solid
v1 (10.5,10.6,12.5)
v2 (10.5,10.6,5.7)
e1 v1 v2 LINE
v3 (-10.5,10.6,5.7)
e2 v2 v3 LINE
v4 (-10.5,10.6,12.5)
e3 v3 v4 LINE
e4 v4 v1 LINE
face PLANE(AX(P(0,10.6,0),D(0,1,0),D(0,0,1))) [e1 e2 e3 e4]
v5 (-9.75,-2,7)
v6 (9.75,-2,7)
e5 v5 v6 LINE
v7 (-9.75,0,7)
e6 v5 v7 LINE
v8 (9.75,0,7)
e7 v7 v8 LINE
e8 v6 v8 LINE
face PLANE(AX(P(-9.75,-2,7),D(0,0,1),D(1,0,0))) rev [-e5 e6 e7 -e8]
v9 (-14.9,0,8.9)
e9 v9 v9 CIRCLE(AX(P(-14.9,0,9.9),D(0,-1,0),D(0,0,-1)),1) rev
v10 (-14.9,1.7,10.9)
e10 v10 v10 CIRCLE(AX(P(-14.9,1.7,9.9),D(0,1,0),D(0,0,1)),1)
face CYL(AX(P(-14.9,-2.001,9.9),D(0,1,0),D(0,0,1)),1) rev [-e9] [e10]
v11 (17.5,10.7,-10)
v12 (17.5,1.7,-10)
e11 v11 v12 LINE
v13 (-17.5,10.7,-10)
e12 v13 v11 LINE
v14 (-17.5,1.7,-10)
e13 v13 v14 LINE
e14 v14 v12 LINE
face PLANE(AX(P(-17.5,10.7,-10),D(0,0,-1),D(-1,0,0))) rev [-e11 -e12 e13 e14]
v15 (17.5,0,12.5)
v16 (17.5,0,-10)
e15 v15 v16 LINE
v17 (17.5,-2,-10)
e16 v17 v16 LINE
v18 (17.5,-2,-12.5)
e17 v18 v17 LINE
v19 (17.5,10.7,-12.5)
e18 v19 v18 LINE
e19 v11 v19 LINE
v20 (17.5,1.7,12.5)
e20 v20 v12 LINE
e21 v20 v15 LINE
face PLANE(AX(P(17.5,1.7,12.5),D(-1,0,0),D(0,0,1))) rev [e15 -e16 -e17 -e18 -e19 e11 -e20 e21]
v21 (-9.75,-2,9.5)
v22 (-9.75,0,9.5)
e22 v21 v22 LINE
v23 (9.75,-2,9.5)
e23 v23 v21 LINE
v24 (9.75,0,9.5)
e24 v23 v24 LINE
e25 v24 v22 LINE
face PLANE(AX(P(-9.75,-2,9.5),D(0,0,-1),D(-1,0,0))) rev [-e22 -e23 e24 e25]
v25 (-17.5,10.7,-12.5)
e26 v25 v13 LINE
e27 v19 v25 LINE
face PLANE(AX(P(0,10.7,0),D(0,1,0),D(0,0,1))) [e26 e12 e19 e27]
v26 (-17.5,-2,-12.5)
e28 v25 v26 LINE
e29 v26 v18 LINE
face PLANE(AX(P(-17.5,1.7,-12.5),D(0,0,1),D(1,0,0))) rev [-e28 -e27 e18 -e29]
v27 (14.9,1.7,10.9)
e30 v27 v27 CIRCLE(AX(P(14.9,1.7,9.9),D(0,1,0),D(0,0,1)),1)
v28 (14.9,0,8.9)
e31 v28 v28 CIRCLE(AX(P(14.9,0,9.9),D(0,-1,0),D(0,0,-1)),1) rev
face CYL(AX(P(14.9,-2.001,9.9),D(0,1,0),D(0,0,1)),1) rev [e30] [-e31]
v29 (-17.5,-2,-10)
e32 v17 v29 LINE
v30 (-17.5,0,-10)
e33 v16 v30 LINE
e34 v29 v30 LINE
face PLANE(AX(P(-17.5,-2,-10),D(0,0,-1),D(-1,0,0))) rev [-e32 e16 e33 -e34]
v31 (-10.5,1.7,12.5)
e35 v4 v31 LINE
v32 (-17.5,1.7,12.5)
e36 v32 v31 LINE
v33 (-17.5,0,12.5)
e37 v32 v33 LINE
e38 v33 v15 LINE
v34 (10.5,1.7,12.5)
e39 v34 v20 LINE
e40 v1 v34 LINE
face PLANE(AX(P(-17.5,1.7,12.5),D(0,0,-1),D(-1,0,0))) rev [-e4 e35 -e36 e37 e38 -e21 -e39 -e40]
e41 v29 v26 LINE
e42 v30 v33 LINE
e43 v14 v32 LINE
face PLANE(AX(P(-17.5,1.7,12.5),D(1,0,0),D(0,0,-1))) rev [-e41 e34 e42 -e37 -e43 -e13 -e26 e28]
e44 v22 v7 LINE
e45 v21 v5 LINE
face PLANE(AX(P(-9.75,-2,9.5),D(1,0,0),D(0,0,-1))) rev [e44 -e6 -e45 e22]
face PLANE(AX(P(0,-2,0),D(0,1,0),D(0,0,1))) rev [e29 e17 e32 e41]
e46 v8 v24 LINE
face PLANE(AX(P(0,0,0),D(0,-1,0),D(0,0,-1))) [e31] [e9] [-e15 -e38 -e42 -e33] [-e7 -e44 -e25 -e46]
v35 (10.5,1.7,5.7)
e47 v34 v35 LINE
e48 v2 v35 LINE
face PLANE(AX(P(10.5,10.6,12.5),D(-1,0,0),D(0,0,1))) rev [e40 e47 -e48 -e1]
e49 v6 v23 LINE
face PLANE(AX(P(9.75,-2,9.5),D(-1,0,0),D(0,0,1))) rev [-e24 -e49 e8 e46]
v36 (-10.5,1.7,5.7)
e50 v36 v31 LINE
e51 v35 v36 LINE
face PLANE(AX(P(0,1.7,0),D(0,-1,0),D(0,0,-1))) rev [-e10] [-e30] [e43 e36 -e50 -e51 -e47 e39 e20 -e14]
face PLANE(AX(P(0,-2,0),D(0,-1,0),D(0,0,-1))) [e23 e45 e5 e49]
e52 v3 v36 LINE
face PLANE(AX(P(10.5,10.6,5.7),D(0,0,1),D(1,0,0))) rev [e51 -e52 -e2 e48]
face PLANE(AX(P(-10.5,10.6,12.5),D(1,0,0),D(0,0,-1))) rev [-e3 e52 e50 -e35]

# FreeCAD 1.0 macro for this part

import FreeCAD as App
import Part
import Sketcher
from FreeCAD import Vector

doc = App.newDocument("Part")
body = doc.addObject("PartDesign::Body", "Body")

sketch1 = body.newObject("Sketcher::SketchObject", "Sketch")
sketch1.AttachmentSupport = (doc.getObject("XZ_Plane"), [""])
sketch1.MapMode = "FlatFace"
sketch1.addGeometry([
    Part.LineSegment(Vector(-18, -12, 0), Vector(-18, 12, 0)),
    Part.LineSegment(Vector(-18, 12, 0), Vector(18, 12, 0)),
    Part.LineSegment(Vector(18, 12, 0), Vector(18, -12, 0)),
    Part.LineSegment(Vector(18, -12, 0), Vector(-18, -12, 0)),
], False)
sketch1.addConstraint([
    Sketcher.Constraint("Coincident", 0, 2, 1, 1),
    Sketcher.Constraint("Coincident", 1, 2, 2, 1),
    Sketcher.Constraint("Coincident", 2, 2, 3, 1),
    Sketcher.Constraint("Coincident", 3, 2, 0, 1),
    Sketcher.Constraint("Vertical", 0),
    Sketcher.Constraint("Horizontal", 1),
    Sketcher.Constraint("Vertical", 2),
    Sketcher.Constraint("Horizontal", 3),
    Sketcher.Constraint("Symmetric", 0, 2, 2, 2, -1, 1),
    Sketcher.Constraint("DistanceX", 1, 1, 1, 2, 35.0),
    Sketcher.Constraint("DistanceY", 0, 1, 0, 2, 25.0),
])
pad1 = body.newObject("PartDesign::Pad", "Pad")
pad1.Profile = sketch1
pad1.Length = 1.7
pad1.Reversed = True

sketch2 = body.newObject("Sketcher::SketchObject", "Sketch001")
sketch2.AttachmentSupport = (doc.getObject("XZ_Plane"), [""])
sketch2.MapMode = "FlatFace"
sketch2.AttachmentOffset = App.Placement(Vector(0, 0, -1.7), App.Rotation())
sketch2.addGeometry([
    Part.LineSegment(Vector(-10, 6, 0), Vector(-10, 12, 0)),
    Part.LineSegment(Vector(-10, 12, 0), Vector(10, 12, 0)),
    Part.LineSegment(Vector(10, 12, 0), Vector(10, 6, 0)),
    Part.LineSegment(Vector(10, 6, 0), Vector(-10, 6, 0)),
], False)
sketch2.addConstraint([
    Sketcher.Constraint("Coincident", 0, 2, 1, 1),
    Sketcher.Constraint("Coincident", 1, 2, 2, 1),
    Sketcher.Constraint("Coincident", 2, 2, 3, 1),
    Sketcher.Constraint("Coincident", 3, 2, 0, 1),
    Sketcher.Constraint("Vertical", 0),
    Sketcher.Constraint("Horizontal", 1),
    Sketcher.Constraint("Vertical", 2),
    Sketcher.Constraint("Horizontal", 3),
    Sketcher.Constraint("DistanceX", 1, 1, 1, 2, 21.0),
    Sketcher.Constraint("DistanceY", 0, 1, 0, 2, 6.8),
    Sketcher.Constraint("DistanceX", 0, 2, -1, 1, 10.5),
    Sketcher.Constraint("DistanceY", -1, 1, 0, 2, 12.5),
])
pad2 = body.newObject("PartDesign::Pad", "Pad001")
pad2.Profile = sketch2
pad2.Length = 8.9
pad2.Reversed = True

sketch3 = body.newObject("Sketcher::SketchObject", "Sketch002")
sketch3.AttachmentSupport = (doc.getObject("XZ_Plane"), [""])
sketch3.MapMode = "FlatFace"
sketch3.AttachmentOffset = App.Placement(Vector(0, 0, -1.7), App.Rotation())
sketch3.addGeometry([
    Part.LineSegment(Vector(-17.5, -12.5, 0), Vector(-17.5, -10, 0)),
    Part.LineSegment(Vector(-17.5, -10, 0), Vector(17.5, -10, 0)),
    Part.LineSegment(Vector(17.5, -10, 0), Vector(17.5, -12.5, 0)),
    Part.LineSegment(Vector(17.5, -12.5, 0), Vector(-17.5, -12.5, 0)),
], False)
sketch3.addConstraint([
    Sketcher.Constraint("Coincident", 0, 2, 1, 1),
    Sketcher.Constraint("Coincident", 1, 2, 2, 1),
    Sketcher.Constraint("Coincident", 2, 2, 3, 1),
    Sketcher.Constraint("Coincident", 3, 2, 0, 1),
    Sketcher.Constraint("Vertical", 0),
    Sketcher.Constraint("Horizontal", 1),
    Sketcher.Constraint("Vertical", 2),
    Sketcher.Constraint("Horizontal", 3),
    Sketcher.Constraint("DistanceX", 1, 1, 1, 2, 35.0),
    Sketcher.Constraint("DistanceY", 0, 1, 0, 2, 2.5),
    Sketcher.Constraint("DistanceY", 0, 2, -1, 1, 10.0),
    Sketcher.Constraint("DistanceX", 0, 2, -1, 1, 17.5),
])
pad3 = body.newObject("PartDesign::Pad", "Pad002")
pad3.Profile = sketch3
pad3.Length = 9
pad3.Reversed = True

sketch4 = body.newObject("Sketcher::SketchObject", "Sketch003")
sketch4.AttachmentSupport = (doc.getObject("XZ_Plane"), [""])
sketch4.MapMode = "FlatFace"
sketch4.addGeometry([
    Part.LineSegment(Vector(-17.5, -10, 0), Vector(-17.5, -12.5, 0)),
    Part.LineSegment(Vector(-17.5, -12.5, 0), Vector(17.5, -12.5, 0)),
    Part.LineSegment(Vector(17.5, -12.5, 0), Vector(17.5, -10, 0)),
    Part.LineSegment(Vector(17.5, -10, 0), Vector(-17.5, -10, 0)),
    Part.LineSegment(Vector(-9.8, 9.5, 0), Vector(-9.8, 7, 0)),
    Part.LineSegment(Vector(-9.8, 7, 0), Vector(9.8, 7, 0)),
    Part.LineSegment(Vector(9.8, 7, 0), Vector(9.8, 9.5, 0)),
    Part.LineSegment(Vector(9.8, 9.5, 0), Vector(-9.8, 9.5, 0)),
], False)
sketch4.addConstraint([
    Sketcher.Constraint("Coincident", 0, 2, 1, 1),
    Sketcher.Constraint("Coincident", 1, 2, 2, 1),
    Sketcher.Constraint("Coincident", 2, 2, 3, 1),
    Sketcher.Constraint("Coincident", 3, 2, 0, 1),
    Sketcher.Constraint("Coincident", 4, 2, 5, 1),
    Sketcher.Constraint("Coincident", 5, 2, 6, 1),
    Sketcher.Constraint("Coincident", 6, 2, 7, 1),
    Sketcher.Constraint("Coincident", 7, 2, 4, 1),
    Sketcher.Constraint("Vertical", 0),
    Sketcher.Constraint("Horizontal", 1),
    Sketcher.Constraint("Vertical", 2),
    Sketcher.Constraint("Horizontal", 3),
    Sketcher.Constraint("Vertical", 4),
    Sketcher.Constraint("Horizontal", 5),
    Sketcher.Constraint("Vertical", 6),
    Sketcher.Constraint("Horizontal", 7),
    Sketcher.Constraint("Equal", 2, 4),
    Sketcher.Constraint("DistanceX", 1, 1, 1, 2, 35.0),
    Sketcher.Constraint("DistanceX", 5, 1, 5, 2, 19.5),
    Sketcher.Constraint("DistanceY", 0, 2, 0, 1, 2.5),
    Sketcher.Constraint("DistanceY", 2, 2, -1, 1, 10.0),
    Sketcher.Constraint("DistanceY", -1, 1, 4, 2, 7.0),
    Sketcher.Constraint("DistanceX", 0, 2, -1, 1, 17.5),
    Sketcher.Constraint("DistanceX", 4, 2, -1, 1, 9.75),
])
pad4 = body.newObject("PartDesign::Pad", "Pad003")
pad4.Profile = sketch4
pad4.Length = 2

sketch5 = body.newObject("Sketcher::SketchObject", "Sketch004")
sketch5.AttachmentSupport = (doc.getObject("XZ_Plane"), [""])
sketch5.MapMode = "FlatFace"
sketch5.AttachmentOffset = App.Placement(Vector(0, 0, -1.7), App.Rotation())
sketch5.addGeometry(Part.Circle(Vector(14.9, 9.9, 0), Vector(0, 0, 1), 1), False)
sketch5.addConstraint([
    Sketcher.Constraint("Diameter", 0, 2.0),
    Sketcher.Constraint("DistanceX", -1, 1, 0, 3, 14.9),
    Sketcher.Constraint("DistanceY", -1, 1, 0, 3, 9.9),
])
pocket1 = body.newObject("PartDesign::Pocket", "Pocket")
pocket1.Profile = sketch5
pocket1.Type = "UpToFirst"
pocket1.Reversed = True

sketch6 = body.newObject("Sketcher::SketchObject", "Sketch005")
sketch6.AttachmentSupport = (doc.getObject("XZ_Plane"), [""])
sketch6.MapMode = "FlatFace"
sketch6.AttachmentOffset = App.Placement(Vector(0, 0, -1.7), App.Rotation())
sketch6.addGeometry(Part.Circle(Vector(-14.9, 9.9, 0), Vector(0, 0, 1), 1), False)
sketch6.addConstraint([
    Sketcher.Constraint("Diameter", 0, 2.0),
    Sketcher.Constraint("DistanceX", 0, 3, -1, 1, 14.9),
    Sketcher.Constraint("DistanceY", -1, 1, 0, 3, 9.9),
])
pocket2 = body.newObject("PartDesign::Pocket", "Pocket001")
pocket2.Profile = sketch6
pocket2.Type = "UpToFirst"
pocket2.Reversed = True

doc.recompute()
